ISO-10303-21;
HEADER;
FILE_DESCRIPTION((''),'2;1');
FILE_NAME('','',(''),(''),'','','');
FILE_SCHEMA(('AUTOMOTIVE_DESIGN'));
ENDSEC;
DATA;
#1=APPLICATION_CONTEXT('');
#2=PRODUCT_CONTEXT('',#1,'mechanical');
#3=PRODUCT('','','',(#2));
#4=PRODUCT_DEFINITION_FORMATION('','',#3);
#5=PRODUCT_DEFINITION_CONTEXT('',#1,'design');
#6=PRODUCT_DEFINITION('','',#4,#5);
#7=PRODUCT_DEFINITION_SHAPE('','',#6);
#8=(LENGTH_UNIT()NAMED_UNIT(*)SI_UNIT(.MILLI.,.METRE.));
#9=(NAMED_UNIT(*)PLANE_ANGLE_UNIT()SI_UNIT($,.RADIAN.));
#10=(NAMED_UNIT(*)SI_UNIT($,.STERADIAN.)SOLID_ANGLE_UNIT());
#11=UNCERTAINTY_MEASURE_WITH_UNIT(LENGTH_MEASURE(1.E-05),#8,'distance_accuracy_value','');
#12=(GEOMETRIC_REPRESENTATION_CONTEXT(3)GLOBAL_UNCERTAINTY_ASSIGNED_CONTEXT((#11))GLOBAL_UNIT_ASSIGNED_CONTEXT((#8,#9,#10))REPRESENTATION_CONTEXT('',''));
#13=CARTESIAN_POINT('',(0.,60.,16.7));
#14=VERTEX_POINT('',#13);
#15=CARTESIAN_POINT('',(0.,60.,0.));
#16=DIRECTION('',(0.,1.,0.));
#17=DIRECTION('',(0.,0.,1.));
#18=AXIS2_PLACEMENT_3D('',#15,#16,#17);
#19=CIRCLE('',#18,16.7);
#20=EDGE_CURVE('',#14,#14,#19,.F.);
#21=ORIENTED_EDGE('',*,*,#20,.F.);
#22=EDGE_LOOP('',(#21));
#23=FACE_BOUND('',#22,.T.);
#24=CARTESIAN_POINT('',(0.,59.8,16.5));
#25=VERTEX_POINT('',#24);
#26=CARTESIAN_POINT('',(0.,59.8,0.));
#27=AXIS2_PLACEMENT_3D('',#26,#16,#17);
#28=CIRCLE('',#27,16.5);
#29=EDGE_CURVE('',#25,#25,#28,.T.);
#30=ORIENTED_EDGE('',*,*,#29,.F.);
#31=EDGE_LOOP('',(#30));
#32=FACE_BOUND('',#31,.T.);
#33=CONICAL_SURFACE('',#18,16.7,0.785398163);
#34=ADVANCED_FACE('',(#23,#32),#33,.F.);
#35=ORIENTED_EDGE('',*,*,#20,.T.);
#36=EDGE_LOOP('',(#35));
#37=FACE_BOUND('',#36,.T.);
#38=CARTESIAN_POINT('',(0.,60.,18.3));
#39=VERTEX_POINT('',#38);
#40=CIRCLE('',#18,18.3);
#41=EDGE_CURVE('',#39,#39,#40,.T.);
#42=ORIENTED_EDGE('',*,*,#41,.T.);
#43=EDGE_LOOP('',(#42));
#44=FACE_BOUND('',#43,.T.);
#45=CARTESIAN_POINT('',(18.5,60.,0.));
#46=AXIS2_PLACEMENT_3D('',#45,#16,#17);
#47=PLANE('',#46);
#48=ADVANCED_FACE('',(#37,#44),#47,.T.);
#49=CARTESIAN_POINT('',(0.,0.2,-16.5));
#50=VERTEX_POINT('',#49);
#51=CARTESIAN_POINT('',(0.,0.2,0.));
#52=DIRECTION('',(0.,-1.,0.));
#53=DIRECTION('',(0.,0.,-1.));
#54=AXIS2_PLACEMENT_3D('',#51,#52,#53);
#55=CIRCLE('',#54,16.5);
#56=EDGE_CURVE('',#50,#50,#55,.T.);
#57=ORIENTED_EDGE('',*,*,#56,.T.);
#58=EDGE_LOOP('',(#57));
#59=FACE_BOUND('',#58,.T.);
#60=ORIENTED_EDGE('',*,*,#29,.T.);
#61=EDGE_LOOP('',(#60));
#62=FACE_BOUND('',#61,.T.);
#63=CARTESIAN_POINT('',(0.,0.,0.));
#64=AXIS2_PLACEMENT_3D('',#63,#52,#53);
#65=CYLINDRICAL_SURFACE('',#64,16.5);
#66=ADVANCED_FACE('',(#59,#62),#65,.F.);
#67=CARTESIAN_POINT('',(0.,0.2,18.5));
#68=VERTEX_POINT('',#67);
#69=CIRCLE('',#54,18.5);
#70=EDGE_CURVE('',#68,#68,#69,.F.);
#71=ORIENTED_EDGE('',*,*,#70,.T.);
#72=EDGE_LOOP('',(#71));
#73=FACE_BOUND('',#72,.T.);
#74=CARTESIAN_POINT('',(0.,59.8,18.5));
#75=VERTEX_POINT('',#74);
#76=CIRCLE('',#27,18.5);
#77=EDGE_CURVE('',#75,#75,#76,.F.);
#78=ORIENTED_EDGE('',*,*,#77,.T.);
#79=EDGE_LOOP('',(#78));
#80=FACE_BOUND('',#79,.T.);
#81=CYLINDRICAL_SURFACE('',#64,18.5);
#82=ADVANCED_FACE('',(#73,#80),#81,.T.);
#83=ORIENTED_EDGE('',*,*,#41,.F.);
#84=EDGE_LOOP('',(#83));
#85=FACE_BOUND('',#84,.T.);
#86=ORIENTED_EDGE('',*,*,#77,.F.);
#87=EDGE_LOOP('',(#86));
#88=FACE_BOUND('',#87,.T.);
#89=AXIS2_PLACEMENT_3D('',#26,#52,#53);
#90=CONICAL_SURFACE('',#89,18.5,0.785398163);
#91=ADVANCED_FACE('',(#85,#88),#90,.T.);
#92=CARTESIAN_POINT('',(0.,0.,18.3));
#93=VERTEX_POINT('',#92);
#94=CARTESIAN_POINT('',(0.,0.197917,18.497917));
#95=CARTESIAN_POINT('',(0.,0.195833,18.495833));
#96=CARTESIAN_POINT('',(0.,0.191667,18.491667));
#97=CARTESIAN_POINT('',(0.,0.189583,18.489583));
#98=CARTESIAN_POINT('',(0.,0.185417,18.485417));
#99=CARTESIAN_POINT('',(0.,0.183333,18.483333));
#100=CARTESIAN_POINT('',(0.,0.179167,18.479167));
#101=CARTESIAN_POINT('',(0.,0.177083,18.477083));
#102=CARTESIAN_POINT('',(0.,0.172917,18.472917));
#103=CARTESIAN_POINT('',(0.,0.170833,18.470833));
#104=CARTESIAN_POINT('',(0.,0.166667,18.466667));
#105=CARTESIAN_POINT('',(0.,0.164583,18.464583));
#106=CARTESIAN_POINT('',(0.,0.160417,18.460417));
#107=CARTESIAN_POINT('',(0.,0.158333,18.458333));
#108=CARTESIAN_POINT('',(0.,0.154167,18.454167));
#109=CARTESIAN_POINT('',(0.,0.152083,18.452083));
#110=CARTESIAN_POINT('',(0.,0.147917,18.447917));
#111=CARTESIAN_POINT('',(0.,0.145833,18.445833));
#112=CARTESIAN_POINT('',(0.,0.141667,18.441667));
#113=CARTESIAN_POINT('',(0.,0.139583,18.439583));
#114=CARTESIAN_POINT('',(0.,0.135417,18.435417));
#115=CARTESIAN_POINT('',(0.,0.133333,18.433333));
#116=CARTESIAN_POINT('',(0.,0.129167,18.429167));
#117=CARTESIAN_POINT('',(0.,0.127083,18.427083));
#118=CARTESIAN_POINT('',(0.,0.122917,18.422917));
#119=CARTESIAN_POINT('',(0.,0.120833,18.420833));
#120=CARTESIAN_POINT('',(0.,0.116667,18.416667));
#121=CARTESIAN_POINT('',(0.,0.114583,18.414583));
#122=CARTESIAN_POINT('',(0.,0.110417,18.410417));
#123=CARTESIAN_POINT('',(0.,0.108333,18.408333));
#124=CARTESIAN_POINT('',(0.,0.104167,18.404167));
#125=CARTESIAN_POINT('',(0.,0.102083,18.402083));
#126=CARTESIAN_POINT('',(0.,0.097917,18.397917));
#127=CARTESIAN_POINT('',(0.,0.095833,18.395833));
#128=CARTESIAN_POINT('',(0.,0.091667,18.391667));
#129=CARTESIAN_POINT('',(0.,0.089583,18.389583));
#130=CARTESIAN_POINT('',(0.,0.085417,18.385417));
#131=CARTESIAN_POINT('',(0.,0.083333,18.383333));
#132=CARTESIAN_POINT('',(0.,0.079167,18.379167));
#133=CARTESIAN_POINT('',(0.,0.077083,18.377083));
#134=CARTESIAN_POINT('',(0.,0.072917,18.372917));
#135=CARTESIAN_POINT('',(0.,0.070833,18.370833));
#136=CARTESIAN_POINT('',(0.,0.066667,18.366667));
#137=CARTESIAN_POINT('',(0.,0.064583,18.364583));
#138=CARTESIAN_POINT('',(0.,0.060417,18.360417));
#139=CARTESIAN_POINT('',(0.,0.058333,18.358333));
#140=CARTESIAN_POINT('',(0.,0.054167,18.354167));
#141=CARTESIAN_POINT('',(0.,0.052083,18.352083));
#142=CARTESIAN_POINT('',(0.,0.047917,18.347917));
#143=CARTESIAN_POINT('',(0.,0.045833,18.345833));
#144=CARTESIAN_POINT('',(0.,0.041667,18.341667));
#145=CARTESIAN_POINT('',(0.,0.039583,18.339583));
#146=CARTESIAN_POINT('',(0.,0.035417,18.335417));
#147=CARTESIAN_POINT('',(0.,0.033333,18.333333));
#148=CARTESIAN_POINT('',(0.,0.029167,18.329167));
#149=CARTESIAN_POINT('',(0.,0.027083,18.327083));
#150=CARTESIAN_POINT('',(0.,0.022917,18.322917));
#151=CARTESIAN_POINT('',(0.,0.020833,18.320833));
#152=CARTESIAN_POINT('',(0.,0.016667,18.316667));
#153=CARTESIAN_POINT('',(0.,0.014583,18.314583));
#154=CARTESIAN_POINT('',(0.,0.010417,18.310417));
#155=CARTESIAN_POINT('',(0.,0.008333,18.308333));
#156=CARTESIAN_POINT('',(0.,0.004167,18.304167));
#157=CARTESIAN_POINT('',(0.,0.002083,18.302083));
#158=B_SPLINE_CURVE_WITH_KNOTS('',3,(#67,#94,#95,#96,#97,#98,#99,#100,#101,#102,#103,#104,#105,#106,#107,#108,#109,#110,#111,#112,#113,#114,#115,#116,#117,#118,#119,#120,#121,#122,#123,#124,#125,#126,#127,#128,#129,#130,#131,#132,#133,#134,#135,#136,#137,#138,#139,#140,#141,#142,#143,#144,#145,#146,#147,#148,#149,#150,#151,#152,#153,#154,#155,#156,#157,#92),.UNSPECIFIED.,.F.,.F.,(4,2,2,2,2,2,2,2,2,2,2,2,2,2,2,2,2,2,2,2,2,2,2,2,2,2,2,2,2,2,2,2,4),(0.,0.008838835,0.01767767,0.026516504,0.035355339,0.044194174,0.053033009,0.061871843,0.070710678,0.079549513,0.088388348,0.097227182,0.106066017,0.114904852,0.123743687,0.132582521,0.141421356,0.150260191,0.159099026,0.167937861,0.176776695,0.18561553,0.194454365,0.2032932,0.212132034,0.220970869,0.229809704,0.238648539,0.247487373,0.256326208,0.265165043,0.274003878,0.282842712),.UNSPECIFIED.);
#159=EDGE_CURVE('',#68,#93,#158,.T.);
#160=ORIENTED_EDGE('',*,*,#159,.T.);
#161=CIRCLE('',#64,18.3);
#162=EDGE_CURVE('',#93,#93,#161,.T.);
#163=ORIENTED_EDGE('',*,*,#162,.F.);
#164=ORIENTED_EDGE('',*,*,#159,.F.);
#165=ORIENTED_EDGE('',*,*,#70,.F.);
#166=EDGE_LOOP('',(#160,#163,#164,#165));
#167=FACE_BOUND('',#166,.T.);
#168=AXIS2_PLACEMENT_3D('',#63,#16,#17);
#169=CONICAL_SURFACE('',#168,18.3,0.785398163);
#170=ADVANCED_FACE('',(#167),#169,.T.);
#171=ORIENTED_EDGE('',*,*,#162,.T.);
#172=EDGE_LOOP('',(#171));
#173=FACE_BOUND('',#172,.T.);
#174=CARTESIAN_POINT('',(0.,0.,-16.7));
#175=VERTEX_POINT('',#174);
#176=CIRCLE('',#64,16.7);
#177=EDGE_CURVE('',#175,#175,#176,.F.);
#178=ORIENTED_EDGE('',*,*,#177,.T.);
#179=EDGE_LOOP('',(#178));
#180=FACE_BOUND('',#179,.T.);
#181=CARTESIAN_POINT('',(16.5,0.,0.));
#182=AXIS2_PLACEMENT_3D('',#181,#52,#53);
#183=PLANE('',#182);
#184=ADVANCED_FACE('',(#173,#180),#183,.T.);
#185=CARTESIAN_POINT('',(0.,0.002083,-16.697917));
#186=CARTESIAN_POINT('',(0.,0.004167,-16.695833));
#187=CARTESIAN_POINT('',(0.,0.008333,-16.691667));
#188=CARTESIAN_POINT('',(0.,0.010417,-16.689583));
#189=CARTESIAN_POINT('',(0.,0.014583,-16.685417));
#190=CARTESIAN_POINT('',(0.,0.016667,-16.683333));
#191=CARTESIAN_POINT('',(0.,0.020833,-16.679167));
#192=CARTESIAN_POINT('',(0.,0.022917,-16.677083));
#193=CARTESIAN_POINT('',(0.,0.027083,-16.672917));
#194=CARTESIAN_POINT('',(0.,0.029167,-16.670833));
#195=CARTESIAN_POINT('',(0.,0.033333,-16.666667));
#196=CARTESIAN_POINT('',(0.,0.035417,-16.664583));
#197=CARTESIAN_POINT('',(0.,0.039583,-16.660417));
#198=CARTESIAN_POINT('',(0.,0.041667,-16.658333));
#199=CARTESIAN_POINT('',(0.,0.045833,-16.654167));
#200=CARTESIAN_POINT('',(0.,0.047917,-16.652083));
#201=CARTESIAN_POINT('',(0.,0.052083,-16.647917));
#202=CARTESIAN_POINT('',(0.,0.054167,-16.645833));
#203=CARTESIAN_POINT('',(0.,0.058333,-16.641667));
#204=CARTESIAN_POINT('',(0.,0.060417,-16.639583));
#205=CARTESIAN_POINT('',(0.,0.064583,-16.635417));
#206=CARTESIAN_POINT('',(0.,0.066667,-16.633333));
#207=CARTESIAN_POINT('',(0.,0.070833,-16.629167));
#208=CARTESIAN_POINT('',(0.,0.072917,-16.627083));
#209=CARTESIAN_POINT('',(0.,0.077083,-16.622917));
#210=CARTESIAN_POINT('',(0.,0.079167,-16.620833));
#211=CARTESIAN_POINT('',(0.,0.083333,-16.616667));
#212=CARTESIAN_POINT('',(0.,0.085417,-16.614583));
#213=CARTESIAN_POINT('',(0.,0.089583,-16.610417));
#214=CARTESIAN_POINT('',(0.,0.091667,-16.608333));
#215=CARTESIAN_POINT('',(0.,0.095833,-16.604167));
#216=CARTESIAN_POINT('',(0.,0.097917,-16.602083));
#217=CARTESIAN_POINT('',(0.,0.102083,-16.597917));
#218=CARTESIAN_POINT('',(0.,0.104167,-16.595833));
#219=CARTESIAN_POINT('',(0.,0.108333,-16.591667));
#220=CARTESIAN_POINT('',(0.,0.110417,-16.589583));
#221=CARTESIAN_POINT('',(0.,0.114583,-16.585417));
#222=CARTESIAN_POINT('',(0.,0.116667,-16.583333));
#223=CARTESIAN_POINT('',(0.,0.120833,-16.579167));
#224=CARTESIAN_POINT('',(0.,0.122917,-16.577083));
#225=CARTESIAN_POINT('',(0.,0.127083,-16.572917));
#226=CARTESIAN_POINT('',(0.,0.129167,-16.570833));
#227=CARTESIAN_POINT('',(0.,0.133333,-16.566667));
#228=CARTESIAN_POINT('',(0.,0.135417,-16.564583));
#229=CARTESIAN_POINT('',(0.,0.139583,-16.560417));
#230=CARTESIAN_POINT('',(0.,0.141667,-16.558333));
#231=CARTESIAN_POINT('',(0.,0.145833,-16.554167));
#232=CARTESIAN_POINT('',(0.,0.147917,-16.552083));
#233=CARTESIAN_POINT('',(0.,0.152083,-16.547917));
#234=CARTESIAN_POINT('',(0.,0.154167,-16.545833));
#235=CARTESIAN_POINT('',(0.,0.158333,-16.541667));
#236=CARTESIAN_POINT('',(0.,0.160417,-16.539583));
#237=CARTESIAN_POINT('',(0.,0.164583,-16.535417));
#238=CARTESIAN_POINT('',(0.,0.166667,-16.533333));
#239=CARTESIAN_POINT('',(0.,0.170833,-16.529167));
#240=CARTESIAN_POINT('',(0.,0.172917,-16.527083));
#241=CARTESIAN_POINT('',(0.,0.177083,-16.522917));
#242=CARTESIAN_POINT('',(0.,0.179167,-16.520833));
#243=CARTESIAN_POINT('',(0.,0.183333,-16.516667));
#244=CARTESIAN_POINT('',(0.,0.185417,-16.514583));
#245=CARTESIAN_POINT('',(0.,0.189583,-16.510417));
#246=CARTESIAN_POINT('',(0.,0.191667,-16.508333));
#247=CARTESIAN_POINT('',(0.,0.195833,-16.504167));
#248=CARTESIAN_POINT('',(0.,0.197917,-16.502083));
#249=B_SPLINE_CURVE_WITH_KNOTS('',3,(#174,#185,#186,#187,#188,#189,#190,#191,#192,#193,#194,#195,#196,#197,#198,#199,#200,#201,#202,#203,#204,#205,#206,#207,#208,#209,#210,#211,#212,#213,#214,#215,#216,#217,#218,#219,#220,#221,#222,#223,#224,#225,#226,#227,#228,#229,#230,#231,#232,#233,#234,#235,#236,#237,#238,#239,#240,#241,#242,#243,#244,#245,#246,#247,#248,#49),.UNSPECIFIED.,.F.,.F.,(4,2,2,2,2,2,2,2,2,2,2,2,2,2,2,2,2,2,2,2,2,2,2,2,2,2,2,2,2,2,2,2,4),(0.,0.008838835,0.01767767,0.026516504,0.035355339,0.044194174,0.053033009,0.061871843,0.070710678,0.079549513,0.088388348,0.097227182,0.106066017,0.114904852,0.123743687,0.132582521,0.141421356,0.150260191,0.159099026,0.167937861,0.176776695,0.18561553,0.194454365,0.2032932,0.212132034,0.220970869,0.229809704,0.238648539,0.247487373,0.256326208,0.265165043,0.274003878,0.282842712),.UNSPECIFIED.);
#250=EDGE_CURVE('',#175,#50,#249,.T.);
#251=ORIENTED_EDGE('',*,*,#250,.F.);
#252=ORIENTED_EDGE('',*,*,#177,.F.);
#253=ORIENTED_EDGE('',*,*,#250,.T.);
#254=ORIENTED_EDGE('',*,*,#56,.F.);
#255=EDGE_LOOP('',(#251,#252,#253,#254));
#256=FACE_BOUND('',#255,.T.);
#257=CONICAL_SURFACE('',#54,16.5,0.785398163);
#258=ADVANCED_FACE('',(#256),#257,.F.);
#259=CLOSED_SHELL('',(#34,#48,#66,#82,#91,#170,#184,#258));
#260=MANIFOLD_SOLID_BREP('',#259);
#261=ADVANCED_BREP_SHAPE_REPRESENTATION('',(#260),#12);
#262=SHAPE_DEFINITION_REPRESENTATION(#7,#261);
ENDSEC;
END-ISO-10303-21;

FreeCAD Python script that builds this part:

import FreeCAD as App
import Part
import Sketcher

V = App.Vector


def edges_at(feature, points):
    """Names of the edges that pass closest to the given points."""
    edges = feature.Shape.Edges
    near = lambda p: min(range(len(edges)), key=lambda i: edges[i].distToShape(Part.Vertex(*p))[0])
    return sorted({f"Edge{near(p) + 1}" for p in points})


def add_polygon(sketch, points):
    """Adds a closed chain of lines whose ends are joined by coincident constraints."""
    first, n = sketch.GeometryCount, len(points)
    for a, b in zip(points, points[1:] + points[:1]):
        sketch.addGeometry(Part.LineSegment(App.Vector(*a, 0), App.Vector(*b, 0)), False)
    for i in range(n):
        sketch.addConstraint(Sketcher.Constraint("Coincident", first + i, 2, first + (i + 1) % n, 1))

doc = App.newDocument("Part")
body = doc.addObject("PartDesign::Body", "Body")

# Sketch on XY plane
sketch1 = body.newObject("Sketcher::SketchObject", "Sketch")
sketch1.AttachmentSupport = (doc.getObject("XY_Plane"), [""])
sketch1.MapMode = "FlatFace"
add_polygon(sketch1, [(16.5, 0), (18.5, 0), (18.5, 60), (16.5, 60)])  # lines 0-3
sketch1.addConstraint(Sketcher.Constraint("Horizontal", 0))
sketch1.addConstraint(Sketcher.Constraint("Vertical", 1))
sketch1.addConstraint(Sketcher.Constraint("Horizontal", 2))
sketch1.addConstraint(Sketcher.Constraint("Vertical", 3))
sketch1.addConstraint(Sketcher.Constraint("PointOnObject", 0, 2, -1))
sketch1.addConstraint(Sketcher.Constraint("DistanceX", 0, 1, 0, 2, 2.0))
sketch1.addConstraint(Sketcher.Constraint("DistanceY", 1, 1, 1, 2, 60.0))
sketch1.addConstraint(Sketcher.Constraint("DistanceX", -1, 1, 0, 2, 18.5))
revolution = body.newObject("PartDesign::Revolution", "Revolution")
revolution.Profile = sketch1
revolution.ReferenceAxis = (sketch1, ["V_Axis"])
revolution.Angle = 360
doc.recompute()

chamfer = body.newObject("PartDesign::Chamfer", "Chamfer")
chamfer.Base = (revolution, edges_at(revolution, [
    (0, 0, 16.5),
    (0, 60, 16.5),
    (0, 60, 18.5),
    (0, 0, 18.5),
]))
chamfer.Size = 0.2

doc.recompute()
